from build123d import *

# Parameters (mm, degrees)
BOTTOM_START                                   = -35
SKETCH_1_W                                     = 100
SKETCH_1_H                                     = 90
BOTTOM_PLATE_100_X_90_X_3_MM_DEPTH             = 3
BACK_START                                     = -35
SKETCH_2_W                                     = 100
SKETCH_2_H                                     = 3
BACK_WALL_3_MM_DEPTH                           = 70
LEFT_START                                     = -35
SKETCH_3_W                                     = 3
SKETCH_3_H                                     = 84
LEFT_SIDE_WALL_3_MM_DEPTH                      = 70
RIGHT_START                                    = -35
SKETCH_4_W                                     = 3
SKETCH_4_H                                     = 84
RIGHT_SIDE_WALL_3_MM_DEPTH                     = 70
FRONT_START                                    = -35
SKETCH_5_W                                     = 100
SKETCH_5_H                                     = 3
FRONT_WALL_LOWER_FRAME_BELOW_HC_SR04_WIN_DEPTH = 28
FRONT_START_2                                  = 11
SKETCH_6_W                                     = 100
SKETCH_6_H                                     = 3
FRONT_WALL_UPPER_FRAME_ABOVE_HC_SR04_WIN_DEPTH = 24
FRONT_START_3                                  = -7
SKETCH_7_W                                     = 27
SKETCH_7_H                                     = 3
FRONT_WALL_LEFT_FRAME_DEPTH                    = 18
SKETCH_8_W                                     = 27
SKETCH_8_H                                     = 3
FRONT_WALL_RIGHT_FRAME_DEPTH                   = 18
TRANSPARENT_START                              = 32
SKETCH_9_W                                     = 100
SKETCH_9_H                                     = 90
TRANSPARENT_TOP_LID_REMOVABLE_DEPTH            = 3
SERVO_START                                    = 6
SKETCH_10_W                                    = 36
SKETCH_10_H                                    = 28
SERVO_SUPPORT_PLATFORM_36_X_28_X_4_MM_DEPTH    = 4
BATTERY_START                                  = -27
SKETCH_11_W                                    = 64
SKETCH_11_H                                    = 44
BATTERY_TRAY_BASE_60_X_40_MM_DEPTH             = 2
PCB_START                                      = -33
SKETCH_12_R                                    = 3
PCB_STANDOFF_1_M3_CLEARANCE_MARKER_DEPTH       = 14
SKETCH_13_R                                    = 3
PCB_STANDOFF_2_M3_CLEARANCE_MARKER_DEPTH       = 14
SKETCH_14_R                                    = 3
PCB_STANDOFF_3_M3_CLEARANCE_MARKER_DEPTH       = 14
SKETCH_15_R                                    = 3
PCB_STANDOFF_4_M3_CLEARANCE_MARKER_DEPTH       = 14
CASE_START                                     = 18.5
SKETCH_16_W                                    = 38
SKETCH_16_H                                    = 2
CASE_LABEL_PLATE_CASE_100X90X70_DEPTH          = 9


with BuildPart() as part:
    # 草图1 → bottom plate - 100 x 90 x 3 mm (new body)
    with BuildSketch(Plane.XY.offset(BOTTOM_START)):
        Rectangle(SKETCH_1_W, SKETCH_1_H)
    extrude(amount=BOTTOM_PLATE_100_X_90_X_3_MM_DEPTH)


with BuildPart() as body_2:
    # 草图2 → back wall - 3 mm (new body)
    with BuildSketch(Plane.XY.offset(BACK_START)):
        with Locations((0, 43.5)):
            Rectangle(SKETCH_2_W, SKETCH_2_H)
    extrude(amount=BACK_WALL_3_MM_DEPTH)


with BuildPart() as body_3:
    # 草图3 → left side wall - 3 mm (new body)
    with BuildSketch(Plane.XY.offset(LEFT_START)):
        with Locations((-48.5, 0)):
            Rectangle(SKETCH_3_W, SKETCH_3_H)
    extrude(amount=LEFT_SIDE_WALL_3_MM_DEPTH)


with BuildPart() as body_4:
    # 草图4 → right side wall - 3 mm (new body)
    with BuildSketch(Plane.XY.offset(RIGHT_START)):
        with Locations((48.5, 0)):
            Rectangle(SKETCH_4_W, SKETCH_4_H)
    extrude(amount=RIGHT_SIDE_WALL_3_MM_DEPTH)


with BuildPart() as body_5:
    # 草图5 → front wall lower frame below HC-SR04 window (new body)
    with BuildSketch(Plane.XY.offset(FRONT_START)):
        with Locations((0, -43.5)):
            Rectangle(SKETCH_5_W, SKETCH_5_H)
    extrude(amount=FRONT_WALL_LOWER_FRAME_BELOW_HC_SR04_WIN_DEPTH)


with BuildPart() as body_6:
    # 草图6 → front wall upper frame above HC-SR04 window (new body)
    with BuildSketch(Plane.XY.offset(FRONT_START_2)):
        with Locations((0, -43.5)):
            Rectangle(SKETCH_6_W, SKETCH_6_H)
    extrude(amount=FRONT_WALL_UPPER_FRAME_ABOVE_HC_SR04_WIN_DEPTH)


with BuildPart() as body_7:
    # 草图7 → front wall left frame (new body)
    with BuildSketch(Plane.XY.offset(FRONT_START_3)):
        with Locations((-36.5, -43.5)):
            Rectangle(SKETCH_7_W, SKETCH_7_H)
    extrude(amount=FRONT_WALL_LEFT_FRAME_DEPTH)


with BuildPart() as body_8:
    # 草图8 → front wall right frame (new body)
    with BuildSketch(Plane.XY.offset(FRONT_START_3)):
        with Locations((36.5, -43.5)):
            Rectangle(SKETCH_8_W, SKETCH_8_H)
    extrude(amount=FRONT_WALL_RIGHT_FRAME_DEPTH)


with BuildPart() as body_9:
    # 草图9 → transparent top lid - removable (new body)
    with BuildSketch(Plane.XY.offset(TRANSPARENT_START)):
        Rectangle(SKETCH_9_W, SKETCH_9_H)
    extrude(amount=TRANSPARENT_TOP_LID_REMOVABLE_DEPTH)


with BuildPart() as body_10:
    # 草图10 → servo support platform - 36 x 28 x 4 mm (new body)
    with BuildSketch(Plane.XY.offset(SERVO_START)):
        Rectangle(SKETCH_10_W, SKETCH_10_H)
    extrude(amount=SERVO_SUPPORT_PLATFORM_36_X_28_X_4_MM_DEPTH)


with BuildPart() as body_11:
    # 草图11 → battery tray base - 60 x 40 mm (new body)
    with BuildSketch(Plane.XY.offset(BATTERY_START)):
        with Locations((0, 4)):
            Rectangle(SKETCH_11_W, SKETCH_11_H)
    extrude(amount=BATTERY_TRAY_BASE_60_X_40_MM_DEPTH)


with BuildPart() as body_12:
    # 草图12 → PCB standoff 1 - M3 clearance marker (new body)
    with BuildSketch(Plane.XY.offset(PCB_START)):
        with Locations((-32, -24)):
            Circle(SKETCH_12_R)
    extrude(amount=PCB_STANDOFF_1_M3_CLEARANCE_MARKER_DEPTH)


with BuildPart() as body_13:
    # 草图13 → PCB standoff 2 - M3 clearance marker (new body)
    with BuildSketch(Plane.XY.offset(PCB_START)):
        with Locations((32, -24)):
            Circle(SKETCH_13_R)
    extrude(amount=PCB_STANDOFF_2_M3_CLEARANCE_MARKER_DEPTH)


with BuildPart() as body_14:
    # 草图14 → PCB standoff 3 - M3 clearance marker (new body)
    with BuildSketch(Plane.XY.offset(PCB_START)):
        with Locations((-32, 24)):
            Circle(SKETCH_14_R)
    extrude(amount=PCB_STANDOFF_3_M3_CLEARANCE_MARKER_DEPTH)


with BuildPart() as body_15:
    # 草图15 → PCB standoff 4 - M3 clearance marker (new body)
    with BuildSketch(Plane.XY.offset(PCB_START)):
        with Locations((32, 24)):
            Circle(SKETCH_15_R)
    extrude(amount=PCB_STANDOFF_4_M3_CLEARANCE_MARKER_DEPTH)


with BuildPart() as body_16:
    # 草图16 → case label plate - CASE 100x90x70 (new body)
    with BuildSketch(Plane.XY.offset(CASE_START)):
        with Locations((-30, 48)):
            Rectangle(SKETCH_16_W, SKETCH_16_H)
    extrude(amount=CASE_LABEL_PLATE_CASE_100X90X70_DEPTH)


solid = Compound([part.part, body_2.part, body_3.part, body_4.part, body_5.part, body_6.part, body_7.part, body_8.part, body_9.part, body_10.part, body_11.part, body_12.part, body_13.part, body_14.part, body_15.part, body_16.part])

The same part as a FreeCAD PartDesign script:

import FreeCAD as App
import Part
import Sketcher
from FreeCAD import Vector
Q = App.Units.Quantity


def add_polygon(sketch, points):
    """Adds a closed chain of lines whose ends are joined by coincident constraints."""
    first, n = sketch.GeometryCount, len(points)
    for a, b in zip(points, points[1:] + points[:1]):
        sketch.addGeometry(Part.LineSegment(App.Vector(*a, 0), App.Vector(*b, 0)), False)
    for i in range(n):
        sketch.addConstraint(Sketcher.Constraint("Coincident", first + i, 2, first + (i + 1) % n, 1))

doc = App.newDocument("Part")
body = doc.addObject("PartDesign::Body", "Body")

# Sketch on XY plane
sketch1 = body.newObject("Sketcher::SketchObject", "Sketch")
sketch1.AttachmentSupport = (doc.getObject("XY_Plane"), [""])
sketch1.MapMode = "FlatFace"
sketch1.AttachmentOffset = App.Placement(Vector(0, 0, -35), App.Rotation())
add_polygon(sketch1, [(-50, 45), (-50, -45), (50, -45), (50, 45)])  # lines 0-3
sketch1.addConstraint([
    Sketcher.Constraint("Vertical", 0),
    Sketcher.Constraint("Horizontal", 1),
    Sketcher.Constraint("Vertical", 2),
    Sketcher.Constraint("Horizontal", 3),
    Sketcher.Constraint("Symmetric", 0, 2, 2, 2, -1, 1),
    Sketcher.Constraint("DistanceX", 1, 1, 1, 2, Q("100 mm")),
    Sketcher.Constraint("DistanceY", 0, 2, 0, 1, Q("90 mm")),
])
pad1 = body.newObject("PartDesign::Pad", "Pad")
pad1.Profile = sketch1
pad1.Length = 3
body2 = doc.addObject("PartDesign::Body", "Body001")

# Sketch on XY plane
sketch2 = body2.newObject("Sketcher::SketchObject", "Sketch001")
sketch2.AttachmentSupport = (doc.getObject("XY_Plane001"), [""])
sketch2.MapMode = "FlatFace"
sketch2.AttachmentOffset = App.Placement(Vector(0, 0, -35), App.Rotation())
add_polygon(sketch2, [(-50, 45), (-50, 42), (50, 42), (50, 45)])  # lines 0-3
sketch2.addConstraint([
    Sketcher.Constraint("Vertical", 0),
    Sketcher.Constraint("Horizontal", 1),
    Sketcher.Constraint("Vertical", 2),
    Sketcher.Constraint("Horizontal", 3),
    Sketcher.Constraint("DistanceX", 1, 1, 1, 2, Q("100 mm")),
    Sketcher.Constraint("DistanceY", 0, 2, 0, 1, Q("3 mm")),
    Sketcher.Constraint("DistanceX", 0, 2, -1, 1, Q("50 mm")),
    Sketcher.Constraint("DistanceY", -1, 1, 0, 2, Q("42 mm")),
])
pad2 = body2.newObject("PartDesign::Pad", "Pad001")
pad2.Profile = sketch2
pad2.Length = 70
body3 = doc.addObject("PartDesign::Body", "Body002")

# Sketch on XY plane
sketch3 = body3.newObject("Sketcher::SketchObject", "Sketch002")
sketch3.AttachmentSupport = (doc.getObject("XY_Plane002"), [""])
sketch3.MapMode = "FlatFace"
sketch3.AttachmentOffset = App.Placement(Vector(0, 0, -35), App.Rotation())
add_polygon(sketch3, [(-50, 42), (-50, -42), (-47, -42), (-47, 42)])  # lines 0-3
sketch3.addConstraint([
    Sketcher.Constraint("Vertical", 0),
    Sketcher.Constraint("Horizontal", 1),
    Sketcher.Constraint("Vertical", 2),
    Sketcher.Constraint("Horizontal", 3),
    Sketcher.Constraint("DistanceX", 1, 1, 1, 2, Q("3 mm")),
    Sketcher.Constraint("DistanceY", 0, 2, 0, 1, Q("84 mm")),
    Sketcher.Constraint("DistanceX", 0, 2, -1, 1, Q("50 mm")),
    Sketcher.Constraint("DistanceY", 0, 2, -1, 1, Q("42 mm")),
])
pad3 = body3.newObject("PartDesign::Pad", "Pad002")
pad3.Profile = sketch3
pad3.Length = 70
body4 = doc.addObject("PartDesign::Body", "Body003")

# Sketch on XY plane
sketch4 = body4.newObject("Sketcher::SketchObject", "Sketch003")
sketch4.AttachmentSupport = (doc.getObject("XY_Plane003"), [""])
sketch4.MapMode = "FlatFace"
sketch4.AttachmentOffset = App.Placement(Vector(0, 0, -35), App.Rotation())
add_polygon(sketch4, [(47, 42), (47, -42), (50, -42), (50, 42)])  # lines 0-3
sketch4.addConstraint([
    Sketcher.Constraint("Vertical", 0),
    Sketcher.Constraint("Horizontal", 1),
    Sketcher.Constraint("Vertical", 2),
    Sketcher.Constraint("Horizontal", 3),
    Sketcher.Constraint("DistanceX", 1, 1, 1, 2, Q("3 mm")),
    Sketcher.Constraint("DistanceY", 0, 2, 0, 1, Q("84 mm")),
    Sketcher.Constraint("DistanceX", -1, 1, 0, 2, Q("47 mm")),
    Sketcher.Constraint("DistanceY", 0, 2, -1, 1, Q("42 mm")),
])
pad4 = body4.newObject("PartDesign::Pad", "Pad003")
pad4.Profile = sketch4
pad4.Length = 70
body5 = doc.addObject("PartDesign::Body", "Body004")

# Sketch on XY plane
sketch5 = body5.newObject("Sketcher::SketchObject", "Sketch004")
sketch5.AttachmentSupport = (doc.getObject("XY_Plane004"), [""])
sketch5.MapMode = "FlatFace"
sketch5.AttachmentOffset = App.Placement(Vector(0, 0, -35), App.Rotation())
add_polygon(sketch5, [(-50, -42), (-50, -45), (50, -45), (50, -42)])  # lines 0-3
sketch5.addConstraint([
    Sketcher.Constraint("Vertical", 0),
    Sketcher.Constraint("Horizontal", 1),
    Sketcher.Constraint("Vertical", 2),
    Sketcher.Constraint("Horizontal", 3),
    Sketcher.Constraint("DistanceX", 1, 1, 1, 2, Q("100 mm")),
    Sketcher.Constraint("DistanceY", 0, 2, 0, 1, Q("3 mm")),
    Sketcher.Constraint("DistanceX", 0, 2, -1, 1, Q("50 mm")),
    Sketcher.Constraint("DistanceY", 0, 2, -1, 1, Q("45 mm")),
])
pad5 = body5.newObject("PartDesign::Pad", "Pad004")
pad5.Profile = sketch5
pad5.Length = 28
body6 = doc.addObject("PartDesign::Body", "Body005")

# Sketch on XY plane
sketch6 = body6.newObject("Sketcher::SketchObject", "Sketch005")
sketch6.AttachmentSupport = (doc.getObject("XY_Plane005"), [""])
sketch6.MapMode = "FlatFace"
sketch6.AttachmentOffset = App.Placement(Vector(0, 0, 11), App.Rotation())
add_polygon(sketch6, [(-50, -42), (-50, -45), (50, -45), (50, -42)])  # lines 0-3
sketch6.addConstraint([
    Sketcher.Constraint("Vertical", 0),
    Sketcher.Constraint("Horizontal", 1),
    Sketcher.Constraint("Vertical", 2),
    Sketcher.Constraint("Horizontal", 3),
    Sketcher.Constraint("DistanceX", 1, 1, 1, 2, Q("100 mm")),
    Sketcher.Constraint("DistanceY", 0, 2, 0, 1, Q("3 mm")),
    Sketcher.Constraint("DistanceX", 0, 2, -1, 1, Q("50 mm")),
    Sketcher.Constraint("DistanceY", 0, 2, -1, 1, Q("45 mm")),
])
pad6 = body6.newObject("PartDesign::Pad", "Pad005")
pad6.Profile = sketch6
pad6.Length = 24
body7 = doc.addObject("PartDesign::Body", "Body006")

# Sketch on XY plane
sketch7 = body7.newObject("Sketcher::SketchObject", "Sketch006")
sketch7.AttachmentSupport = (doc.getObject("XY_Plane006"), [""])
sketch7.MapMode = "FlatFace"
sketch7.AttachmentOffset = App.Placement(Vector(0, 0, -7), App.Rotation())
add_polygon(sketch7, [(-50, -42), (-50, -45), (-23, -45), (-23, -42)])  # lines 0-3
sketch7.addConstraint([
    Sketcher.Constraint("Vertical", 0),
    Sketcher.Constraint("Horizontal", 1),
    Sketcher.Constraint("Vertical", 2),
    Sketcher.Constraint("Horizontal", 3),
    Sketcher.Constraint("DistanceX", 1, 1, 1, 2, Q("27 mm")),
    Sketcher.Constraint("DistanceY", 0, 2, 0, 1, Q("3 mm")),
    Sketcher.Constraint("DistanceX", 0, 2, -1, 1, Q("50 mm")),
    Sketcher.Constraint("DistanceY", 0, 2, -1, 1, Q("45 mm")),
])
pad7 = body7.newObject("PartDesign::Pad", "Pad006")
pad7.Profile = sketch7
pad7.Length = 18
body8 = doc.addObject("PartDesign::Body", "Body007")

# Sketch on XY plane
sketch8 = body8.newObject("Sketcher::SketchObject", "Sketch007")
sketch8.AttachmentSupport = (doc.getObject("XY_Plane007"), [""])
sketch8.MapMode = "FlatFace"
sketch8.AttachmentOffset = App.Placement(Vector(0, 0, -7), App.Rotation())
add_polygon(sketch8, [(23, -42), (23, -45), (50, -45), (50, -42)])  # lines 0-3
sketch8.addConstraint([
    Sketcher.Constraint("Vertical", 0),
    Sketcher.Constraint("Horizontal", 1),
    Sketcher.Constraint("Vertical", 2),
    Sketcher.Constraint("Horizontal", 3),
    Sketcher.Constraint("DistanceX", 1, 1, 1, 2, Q("27 mm")),
    Sketcher.Constraint("DistanceY", 0, 2, 0, 1, Q("3 mm")),
    Sketcher.Constraint("DistanceX", -1, 1, 0, 2, Q("23 mm")),
    Sketcher.Constraint("DistanceY", 0, 2, -1, 1, Q("45 mm")),
])
pad8 = body8.newObject("PartDesign::Pad", "Pad007")
pad8.Profile = sketch8
pad8.Length = 18
body9 = doc.addObject("PartDesign::Body", "Body008")

# Sketch on XY plane
sketch9 = body9.newObject("Sketcher::SketchObject", "Sketch008")
sketch9.AttachmentSupport = (doc.getObject("XY_Plane008"), [""])
sketch9.MapMode = "FlatFace"
sketch9.AttachmentOffset = App.Placement(Vector(0, 0, 32), App.Rotation())
add_polygon(sketch9, [(-50, 45), (-50, -45), (50, -45), (50, 45)])  # lines 0-3
sketch9.addConstraint([
    Sketcher.Constraint("Vertical", 0),
    Sketcher.Constraint("Horizontal", 1),
    Sketcher.Constraint("Vertical", 2),
    Sketcher.Constraint("Horizontal", 3),
    Sketcher.Constraint("Symmetric", 0, 2, 2, 2, -1, 1),
    Sketcher.Constraint("DistanceX", 1, 1, 1, 2, Q("100 mm")),
    Sketcher.Constraint("DistanceY", 0, 2, 0, 1, Q("90 mm")),
])
pad9 = body9.newObject("PartDesign::Pad", "Pad008")
pad9.Profile = sketch9
pad9.Length = 3
body10 = doc.addObject("PartDesign::Body", "Body009")

# Sketch on XY plane
sketch10 = body10.newObject("Sketcher::SketchObject", "Sketch009")
sketch10.AttachmentSupport = (doc.getObject("XY_Plane009"), [""])
sketch10.MapMode = "FlatFace"
sketch10.AttachmentOffset = App.Placement(Vector(0, 0, 6), App.Rotation())
add_polygon(sketch10, [(-18, 14), (-18, -14), (18, -14), (18, 14)])  # lines 0-3
sketch10.addConstraint([
    Sketcher.Constraint("Vertical", 0),
    Sketcher.Constraint("Horizontal", 1),
    Sketcher.Constraint("Vertical", 2),
    Sketcher.Constraint("Horizontal", 3),
    Sketcher.Constraint("Symmetric", 0, 2, 2, 2, -1, 1),
    Sketcher.Constraint("DistanceX", 1, 1, 1, 2, Q("36 mm")),
    Sketcher.Constraint("DistanceY", 0, 2, 0, 1, Q("28 mm")),
])
pad10 = body10.newObject("PartDesign::Pad", "Pad009")
pad10.Profile = sketch10
pad10.Length = 4
body11 = doc.addObject("PartDesign::Body", "Body010")

# Sketch on XY plane
sketch11 = body11.newObject("Sketcher::SketchObject", "Sketch010")
sketch11.AttachmentSupport = (doc.getObject("XY_Plane010"), [""])
sketch11.MapMode = "FlatFace"
sketch11.AttachmentOffset = App.Placement(Vector(0, 0, -27), App.Rotation())
add_polygon(sketch11, [(-32, 26), (-32, -18), (32, -18), (32, 26)])  # lines 0-3
sketch11.addConstraint([
    Sketcher.Constraint("Vertical", 0),
    Sketcher.Constraint("Horizontal", 1),
    Sketcher.Constraint("Vertical", 2),
    Sketcher.Constraint("Horizontal", 3),
    Sketcher.Constraint("DistanceX", 1, 1, 1, 2, Q("64 mm")),
    Sketcher.Constraint("DistanceY", 0, 2, 0, 1, Q("44 mm")),
    Sketcher.Constraint("DistanceX", 0, 2, -1, 1, Q("32 mm")),
    Sketcher.Constraint("DistanceY", 0, 2, -1, 1, Q("18 mm")),
])
pad11 = body11.newObject("PartDesign::Pad", "Pad010")
pad11.Profile = sketch11
pad11.Length = 2
body12 = doc.addObject("PartDesign::Body", "Body011")

# Sketch on XY plane
sketch12 = body12.newObject("Sketcher::SketchObject", "Sketch011")
sketch12.AttachmentSupport = (doc.getObject("XY_Plane011"), [""])
sketch12.MapMode = "FlatFace"
sketch12.AttachmentOffset = App.Placement(Vector(0, 0, -33), App.Rotation())
sketch12.addGeometry(Part.Circle(Vector(-32, -24, 0), Vector(0, 0, 1), 3), False)
sketch12.addConstraint([
    Sketcher.Constraint("Diameter", 0, Q("6 mm")),
    Sketcher.Constraint("DistanceX", 0, 3, -1, 1, Q("32 mm")),
    Sketcher.Constraint("DistanceY", 0, 3, -1, 1, Q("24 mm")),
])
pad12 = body12.newObject("PartDesign::Pad", "Pad011")
pad12.Profile = sketch12
pad12.Length = 14
body13 = doc.addObject("PartDesign::Body", "Body012")

# Sketch on XY plane
sketch13 = body13.newObject("Sketcher::SketchObject", "Sketch012")
sketch13.AttachmentSupport = (doc.getObject("XY_Plane012"), [""])
sketch13.MapMode = "FlatFace"
sketch13.AttachmentOffset = App.Placement(Vector(0, 0, -33), App.Rotation())
sketch13.addGeometry(Part.Circle(Vector(32, -24, 0), Vector(0, 0, 1), 3), False)
sketch13.addConstraint([
    Sketcher.Constraint("Diameter", 0, Q("6 mm")),
    Sketcher.Constraint("DistanceX", -1, 1, 0, 3, Q("32 mm")),
    Sketcher.Constraint("DistanceY", 0, 3, -1, 1, Q("24 mm")),
])
pad13 = body13.newObject("PartDesign::Pad", "Pad012")
pad13.Profile = sketch13
pad13.Length = 14
body14 = doc.addObject("PartDesign::Body", "Body013")

# Sketch on XY plane
sketch14 = body14.newObject("Sketcher::SketchObject", "Sketch013")
sketch14.AttachmentSupport = (doc.getObject("XY_Plane013"), [""])
sketch14.MapMode = "FlatFace"
sketch14.AttachmentOffset = App.Placement(Vector(0, 0, -33), App.Rotation())
sketch14.addGeometry(Part.Circle(Vector(-32, 24, 0), Vector(0, 0, 1), 3), False)
sketch14.addConstraint([
    Sketcher.Constraint("Diameter", 0, Q("6 mm")),
    Sketcher.Constraint("DistanceX", 0, 3, -1, 1, Q("32 mm")),
    Sketcher.Constraint("DistanceY", -1, 1, 0, 3, Q("24 mm")),
])
pad14 = body14.newObject("PartDesign::Pad", "Pad013")
pad14.Profile = sketch14
pad14.Length = 14
body15 = doc.addObject("PartDesign::Body", "Body014")

# Sketch on XY plane
sketch15 = body15.newObject("Sketcher::SketchObject", "Sketch014")
sketch15.AttachmentSupport = (doc.getObject("XY_Plane014"), [""])
sketch15.MapMode = "FlatFace"
sketch15.AttachmentOffset = App.Placement(Vector(0, 0, -33), App.Rotation())
sketch15.addGeometry(Part.Circle(Vector(32, 24, 0), Vector(0, 0, 1), 3), False)
sketch15.addConstraint([
    Sketcher.Constraint("Diameter", 0, Q("6 mm")),
    Sketcher.Constraint("DistanceX", -1, 1, 0, 3, Q("32 mm")),
    Sketcher.Constraint("DistanceY", -1, 1, 0, 3, Q("24 mm")),
])
pad15 = body15.newObject("PartDesign::Pad", "Pad014")
pad15.Profile = sketch15
pad15.Length = 14
body16 = doc.addObject("PartDesign::Body", "Body015")

# Sketch on XY plane
sketch16 = body16.newObject("Sketcher::SketchObject", "Sketch015")
sketch16.AttachmentSupport = (doc.getObject("XY_Plane015"), [""])
sketch16.MapMode = "FlatFace"
sketch16.AttachmentOffset = App.Placement(Vector(0, 0, 18.5), App.Rotation())
add_polygon(sketch16, [(-49, 49), (-49, 47), (-11, 47), (-11, 49)])  # lines 0-3
sketch16.addConstraint([
    Sketcher.Constraint("Vertical", 0),
    Sketcher.Constraint("Horizontal", 1),
    Sketcher.Constraint("Vertical", 2),
    Sketcher.Constraint("Horizontal", 3),
    Sketcher.Constraint("DistanceX", 1, 1, 1, 2, Q("38 mm")),
    Sketcher.Constraint("DistanceY", 0, 2, 0, 1, Q("2 mm")),
    Sketcher.Constraint("DistanceX", 0, 2, -1, 1, Q("49 mm")),
    Sketcher.Constraint("DistanceY", -1, 1, 0, 2, Q("47 mm")),
])
pad16 = body16.newObject("PartDesign::Pad", "Pad015")
pad16.Profile = sketch16
pad16.Length = 9

doc.recompute()
